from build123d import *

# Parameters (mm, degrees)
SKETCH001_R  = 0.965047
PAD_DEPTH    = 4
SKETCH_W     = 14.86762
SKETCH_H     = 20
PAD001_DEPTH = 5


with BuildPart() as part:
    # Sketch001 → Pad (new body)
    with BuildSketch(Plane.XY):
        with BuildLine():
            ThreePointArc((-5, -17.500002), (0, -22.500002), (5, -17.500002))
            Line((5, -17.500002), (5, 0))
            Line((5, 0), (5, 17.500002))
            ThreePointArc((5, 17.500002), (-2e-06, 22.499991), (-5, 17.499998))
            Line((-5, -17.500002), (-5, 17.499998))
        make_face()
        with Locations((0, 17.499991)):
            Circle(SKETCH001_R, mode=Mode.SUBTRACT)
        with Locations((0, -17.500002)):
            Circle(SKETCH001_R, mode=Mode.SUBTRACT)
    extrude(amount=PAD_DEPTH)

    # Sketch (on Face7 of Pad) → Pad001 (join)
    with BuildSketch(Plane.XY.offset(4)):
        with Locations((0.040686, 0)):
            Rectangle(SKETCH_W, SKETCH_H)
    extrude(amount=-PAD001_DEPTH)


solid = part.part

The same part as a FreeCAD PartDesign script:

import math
import FreeCAD as App
import Part
import Sketcher
Q = App.Units.Quantity


def add_polygon(sketch, points):
    """Adds a closed chain of lines whose ends are joined by coincident constraints."""
    first, n = sketch.GeometryCount, len(points)
    for a, b in zip(points, points[1:] + points[:1]):
        sketch.addGeometry(Part.LineSegment(App.Vector(*a, 0), App.Vector(*b, 0)), False)
    for i in range(n):
        sketch.addConstraint(Sketcher.Constraint("Coincident", first + i, 2, first + (i + 1) % n, 1))

doc = App.newDocument("Part")
body = doc.addObject("PartDesign::Body", "Body")

# Sketch on XY plane
sketch1 = body.newObject("Sketcher::SketchObject", "Sketch")
sketch1.AttachmentSupport = (doc.getObject("XY_Plane"), [""])
sketch1.MapMode = "FlatFace"
sketch1.addGeometry([
    Part.ArcOfCircle(Part.Circle(App.Vector(0, -17.500002, 0), App.Vector(0, 0, 1), 5), math.radians(180), math.radians(360)),  # 0
    Part.LineSegment(App.Vector(5, -17.500002, 0), App.Vector(5, 17.500002, 0)),  # 1
    Part.ArcOfCircle(Part.Circle(App.Vector(0, 17.499991, 0), App.Vector(0, 0, 1), 5), math.radians(0.000126), math.radians(179.99992)),  # 2
    Part.LineSegment(App.Vector(-5, 17.499998, 0), App.Vector(-5, -17.500002, 0)),  # 3
    Part.Circle(App.Vector(0, -17.500002, 0), App.Vector(0, 0, 1), 0.965047),  # 4
    Part.Circle(App.Vector(0, 17.499991, 0), App.Vector(0, 0, 1), 0.965047),  # 5
], False)
sketch1.addConstraint([
    Sketcher.Constraint("Tangent", 0, 2, 1, 1),
    Sketcher.Constraint("Coincident", 1, 2, 2, 1),
    Sketcher.Constraint("Tangent", 2, 2, 3, 1),
    Sketcher.Constraint("Tangent", 3, 2, 0, 1),
    Sketcher.Constraint("Vertical", 1),
    Sketcher.Constraint("Vertical", 3),
    Sketcher.Constraint("Coincident", 4, 3, 0, 3),
    Sketcher.Constraint("Coincident", 5, 3, 2, 3),
    Sketcher.Constraint("Equal", 4, 5),
    Sketcher.Constraint("Symmetric", 0, 2, 2, 2, -1, 1),
    Sketcher.Constraint("Radius", 0, Q("5 mm")),
    Sketcher.Constraint("DistanceY", 3, 2, 3, 1, Q("35 mm")),
    Sketcher.Constraint("DistanceY", -1, 1, 1, 2, Q("17.500002 mm")),
    Sketcher.Constraint("Diameter", 4, Q("1.930094 mm")),
])
pad1 = body.newObject("PartDesign::Pad", "Pad")
pad1.Profile = sketch1
pad1.Length = 4

# Sketch on XY plane
sketch2 = body.newObject("Sketcher::SketchObject", "Sketch001")
sketch2.AttachmentSupport = (doc.getObject("XY_Plane"), [""])
sketch2.MapMode = "FlatFace"
sketch2.AttachmentOffset = App.Placement(App.Vector(0, 0, 4), App.Rotation())
add_polygon(sketch2, [(-7.393124, 10), (-7.393124, -10), (7.474496, -10), (7.474496, 10)])  # lines 0-3
sketch2.addConstraint([
    Sketcher.Constraint("Vertical", 0),
    Sketcher.Constraint("Horizontal", 1),
    Sketcher.Constraint("Vertical", 2),
    Sketcher.Constraint("Horizontal", 3),
    Sketcher.Constraint("DistanceY", 0, 2, 0, 1, Q("20 mm")),
    Sketcher.Constraint("DistanceY", 0, 2, -1, 1, Q("10 mm")),
    Sketcher.Constraint("DistanceX", 1, 1, 1, 2, Q("14.86762 mm")),
    Sketcher.Constraint("DistanceX", 0, 2, -1, 1, Q("7.393124 mm")),
])
pad2 = body.newObject("PartDesign::Pad", "Pad001")
pad2.Profile = sketch2
pad2.Length = 5
pad2.Reversed = True

doc.recompute()
